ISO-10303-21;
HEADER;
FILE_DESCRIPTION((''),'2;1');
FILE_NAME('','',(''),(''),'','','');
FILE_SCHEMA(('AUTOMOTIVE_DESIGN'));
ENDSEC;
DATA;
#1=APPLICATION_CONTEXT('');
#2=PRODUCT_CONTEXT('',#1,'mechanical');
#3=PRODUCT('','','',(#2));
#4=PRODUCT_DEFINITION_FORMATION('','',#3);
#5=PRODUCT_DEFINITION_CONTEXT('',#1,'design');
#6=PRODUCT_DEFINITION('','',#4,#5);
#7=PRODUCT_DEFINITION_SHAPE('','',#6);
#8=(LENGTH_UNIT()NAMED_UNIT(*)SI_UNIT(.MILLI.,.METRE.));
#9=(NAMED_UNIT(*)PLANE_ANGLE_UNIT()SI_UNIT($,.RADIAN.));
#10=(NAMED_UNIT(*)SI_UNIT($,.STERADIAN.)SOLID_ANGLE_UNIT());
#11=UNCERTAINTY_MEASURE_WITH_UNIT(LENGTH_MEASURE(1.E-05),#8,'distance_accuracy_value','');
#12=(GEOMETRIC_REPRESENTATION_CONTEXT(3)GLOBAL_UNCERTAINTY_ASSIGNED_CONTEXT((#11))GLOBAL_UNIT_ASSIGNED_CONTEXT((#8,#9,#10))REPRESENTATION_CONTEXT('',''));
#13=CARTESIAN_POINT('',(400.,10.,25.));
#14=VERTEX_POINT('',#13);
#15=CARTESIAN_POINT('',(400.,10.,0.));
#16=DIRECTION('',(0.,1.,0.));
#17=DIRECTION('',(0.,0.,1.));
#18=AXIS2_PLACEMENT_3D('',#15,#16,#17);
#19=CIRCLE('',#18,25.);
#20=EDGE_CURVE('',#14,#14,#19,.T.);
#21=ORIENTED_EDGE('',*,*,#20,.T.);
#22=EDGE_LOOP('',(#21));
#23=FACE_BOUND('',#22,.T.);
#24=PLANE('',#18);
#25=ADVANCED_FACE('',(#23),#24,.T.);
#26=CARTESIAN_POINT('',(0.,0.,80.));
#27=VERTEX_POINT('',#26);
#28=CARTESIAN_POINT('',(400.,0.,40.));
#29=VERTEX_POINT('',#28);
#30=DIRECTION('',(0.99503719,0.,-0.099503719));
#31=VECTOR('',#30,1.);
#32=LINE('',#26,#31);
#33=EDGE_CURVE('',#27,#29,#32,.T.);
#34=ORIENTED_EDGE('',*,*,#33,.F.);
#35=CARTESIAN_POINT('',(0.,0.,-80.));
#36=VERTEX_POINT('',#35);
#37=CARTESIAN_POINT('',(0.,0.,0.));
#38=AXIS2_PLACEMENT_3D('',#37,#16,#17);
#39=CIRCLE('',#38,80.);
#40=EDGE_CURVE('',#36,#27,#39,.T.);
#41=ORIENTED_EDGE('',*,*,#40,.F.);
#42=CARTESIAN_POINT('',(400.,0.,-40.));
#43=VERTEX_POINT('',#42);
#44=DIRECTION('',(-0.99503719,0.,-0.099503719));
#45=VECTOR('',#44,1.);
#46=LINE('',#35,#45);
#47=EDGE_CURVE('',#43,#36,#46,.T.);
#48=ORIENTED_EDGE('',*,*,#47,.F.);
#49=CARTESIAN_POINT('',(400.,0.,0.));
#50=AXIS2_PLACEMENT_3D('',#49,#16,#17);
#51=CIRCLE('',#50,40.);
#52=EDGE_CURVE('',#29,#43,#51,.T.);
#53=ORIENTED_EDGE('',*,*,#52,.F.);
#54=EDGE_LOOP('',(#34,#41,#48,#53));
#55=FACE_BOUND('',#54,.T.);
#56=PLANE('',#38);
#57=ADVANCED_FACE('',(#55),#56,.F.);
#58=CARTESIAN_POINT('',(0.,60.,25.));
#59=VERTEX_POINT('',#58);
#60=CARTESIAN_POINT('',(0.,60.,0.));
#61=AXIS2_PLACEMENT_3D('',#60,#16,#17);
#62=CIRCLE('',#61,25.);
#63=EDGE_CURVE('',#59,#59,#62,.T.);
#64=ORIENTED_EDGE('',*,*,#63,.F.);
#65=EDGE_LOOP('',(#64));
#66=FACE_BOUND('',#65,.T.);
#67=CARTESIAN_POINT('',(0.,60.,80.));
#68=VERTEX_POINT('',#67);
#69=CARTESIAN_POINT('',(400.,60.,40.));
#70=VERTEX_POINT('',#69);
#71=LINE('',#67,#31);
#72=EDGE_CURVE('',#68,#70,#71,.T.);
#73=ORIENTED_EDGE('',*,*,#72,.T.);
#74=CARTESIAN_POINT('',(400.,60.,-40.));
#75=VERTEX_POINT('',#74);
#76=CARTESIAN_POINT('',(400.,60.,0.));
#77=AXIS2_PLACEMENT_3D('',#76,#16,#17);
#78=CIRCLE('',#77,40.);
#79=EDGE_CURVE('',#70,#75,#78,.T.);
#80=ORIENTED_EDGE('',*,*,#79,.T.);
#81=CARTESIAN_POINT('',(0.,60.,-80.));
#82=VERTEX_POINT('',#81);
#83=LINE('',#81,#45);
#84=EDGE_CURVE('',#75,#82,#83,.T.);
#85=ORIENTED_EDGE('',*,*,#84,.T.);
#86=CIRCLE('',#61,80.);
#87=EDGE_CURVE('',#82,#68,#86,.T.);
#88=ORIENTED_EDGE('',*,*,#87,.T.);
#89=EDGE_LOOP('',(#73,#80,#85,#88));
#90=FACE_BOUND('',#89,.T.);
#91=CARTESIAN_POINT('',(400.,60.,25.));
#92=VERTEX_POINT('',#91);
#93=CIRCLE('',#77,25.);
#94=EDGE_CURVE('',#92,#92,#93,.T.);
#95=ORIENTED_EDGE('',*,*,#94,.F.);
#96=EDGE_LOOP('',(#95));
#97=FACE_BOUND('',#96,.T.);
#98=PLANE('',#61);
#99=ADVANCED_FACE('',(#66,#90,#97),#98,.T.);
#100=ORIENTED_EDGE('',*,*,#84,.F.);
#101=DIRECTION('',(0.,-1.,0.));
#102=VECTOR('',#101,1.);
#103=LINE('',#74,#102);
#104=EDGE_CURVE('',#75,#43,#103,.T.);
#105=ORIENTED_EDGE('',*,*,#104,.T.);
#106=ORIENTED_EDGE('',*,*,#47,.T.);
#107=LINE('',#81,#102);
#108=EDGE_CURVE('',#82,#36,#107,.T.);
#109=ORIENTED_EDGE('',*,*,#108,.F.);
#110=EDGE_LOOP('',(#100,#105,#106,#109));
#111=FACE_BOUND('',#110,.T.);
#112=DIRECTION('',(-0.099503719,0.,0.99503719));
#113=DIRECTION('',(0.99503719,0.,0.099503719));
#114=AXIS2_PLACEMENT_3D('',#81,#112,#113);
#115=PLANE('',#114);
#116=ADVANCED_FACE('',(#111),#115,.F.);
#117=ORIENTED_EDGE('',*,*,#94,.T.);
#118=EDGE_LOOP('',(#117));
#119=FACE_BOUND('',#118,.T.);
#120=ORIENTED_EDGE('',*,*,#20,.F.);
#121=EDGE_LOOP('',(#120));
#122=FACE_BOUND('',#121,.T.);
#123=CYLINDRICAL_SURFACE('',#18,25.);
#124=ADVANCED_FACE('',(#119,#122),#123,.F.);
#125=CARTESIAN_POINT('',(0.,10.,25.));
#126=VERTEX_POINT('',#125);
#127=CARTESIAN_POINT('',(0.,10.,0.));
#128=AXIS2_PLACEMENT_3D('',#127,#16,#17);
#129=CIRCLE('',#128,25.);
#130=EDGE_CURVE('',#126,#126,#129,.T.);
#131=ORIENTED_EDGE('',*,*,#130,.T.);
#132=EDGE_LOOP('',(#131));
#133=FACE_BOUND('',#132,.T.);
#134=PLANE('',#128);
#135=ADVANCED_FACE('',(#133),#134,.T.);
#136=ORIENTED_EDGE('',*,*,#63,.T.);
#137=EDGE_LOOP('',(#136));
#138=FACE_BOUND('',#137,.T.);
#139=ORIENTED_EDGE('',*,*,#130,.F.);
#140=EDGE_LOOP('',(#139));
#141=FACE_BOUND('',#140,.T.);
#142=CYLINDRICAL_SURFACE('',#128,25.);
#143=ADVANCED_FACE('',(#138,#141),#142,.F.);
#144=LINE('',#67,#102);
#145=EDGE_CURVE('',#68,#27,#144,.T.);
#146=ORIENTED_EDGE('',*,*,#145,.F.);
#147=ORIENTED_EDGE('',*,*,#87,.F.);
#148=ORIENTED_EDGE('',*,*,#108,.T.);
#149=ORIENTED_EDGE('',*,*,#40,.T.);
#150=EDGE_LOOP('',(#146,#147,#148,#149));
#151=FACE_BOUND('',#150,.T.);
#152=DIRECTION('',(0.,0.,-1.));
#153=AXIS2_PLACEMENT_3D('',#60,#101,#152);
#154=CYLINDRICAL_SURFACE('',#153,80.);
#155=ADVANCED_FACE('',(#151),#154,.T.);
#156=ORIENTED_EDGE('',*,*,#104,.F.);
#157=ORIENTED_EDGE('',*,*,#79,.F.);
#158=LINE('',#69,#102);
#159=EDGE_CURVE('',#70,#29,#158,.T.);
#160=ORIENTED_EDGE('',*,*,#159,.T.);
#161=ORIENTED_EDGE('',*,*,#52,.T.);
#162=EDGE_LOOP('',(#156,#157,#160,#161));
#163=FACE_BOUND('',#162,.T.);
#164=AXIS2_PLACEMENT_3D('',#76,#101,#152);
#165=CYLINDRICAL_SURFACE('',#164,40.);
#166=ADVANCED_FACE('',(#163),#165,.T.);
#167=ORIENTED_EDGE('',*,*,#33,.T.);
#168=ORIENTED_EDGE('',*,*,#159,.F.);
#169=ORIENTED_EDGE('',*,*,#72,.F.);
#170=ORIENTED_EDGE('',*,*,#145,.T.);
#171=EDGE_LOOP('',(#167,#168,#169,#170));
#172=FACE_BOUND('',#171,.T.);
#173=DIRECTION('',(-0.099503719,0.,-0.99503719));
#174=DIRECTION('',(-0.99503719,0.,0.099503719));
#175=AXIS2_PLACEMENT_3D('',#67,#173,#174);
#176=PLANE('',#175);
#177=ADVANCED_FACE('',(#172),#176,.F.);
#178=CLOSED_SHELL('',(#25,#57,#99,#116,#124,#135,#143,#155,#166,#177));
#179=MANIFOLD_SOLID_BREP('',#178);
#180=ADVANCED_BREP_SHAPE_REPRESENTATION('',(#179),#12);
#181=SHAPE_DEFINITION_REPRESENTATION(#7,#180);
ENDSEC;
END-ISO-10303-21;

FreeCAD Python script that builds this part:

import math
import FreeCAD as App
import Part
import Sketcher
Q = App.Units.Quantity

doc = App.newDocument("Part")
body = doc.addObject("PartDesign::Body", "Body")

# Sketch on XZ plane
sketch1 = body.newObject("Sketcher::SketchObject", "Sketch")
sketch1.AttachmentSupport = (doc.getObject("XZ_Plane"), [""])
sketch1.MapMode = "FlatFace"
sketch1.addGeometry([
    Part.LineSegment(App.Vector(400, -40, 0), App.Vector(0, -80, 0)),
    Part.ArcOfCircle(Part.Circle(App.Vector(0, 0, 0), App.Vector(0, 0, 1), 80), math.radians(90), math.radians(270)),
    Part.LineSegment(App.Vector(0, 80, 0), App.Vector(400, 40, 0)),
    Part.ArcOfCircle(Part.Circle(App.Vector(400, 0, 0), App.Vector(0, 0, 1), 40), math.radians(-90), math.radians(90)),
], False)
sketch1.addConstraint([
    Sketcher.Constraint("Coincident", 0, 2, 1, 2),
    Sketcher.Constraint("Coincident", 1, 1, 2, 1),
    Sketcher.Constraint("Coincident", 2, 2, 3, 2),
    Sketcher.Constraint("Coincident", 3, 1, 0, 1),
    Sketcher.Constraint("Coincident", 1, 3, -1, 1),
    Sketcher.Constraint("Symmetric", 2, 2, 3, 1, -1),
    Sketcher.Constraint("PointOnObject", 0, 2, -2),
    Sketcher.Constraint("PointOnObject", 1, 1, -2),
    Sketcher.Constraint("Vertical", 3, 3, 2, 2),
    Sketcher.Constraint("Radius", 1, Q("80 mm")),
    Sketcher.Constraint("Radius", 3, Q("40 mm")),
    Sketcher.Constraint("DistanceX", -1, 1, 3, 3, Q("400 mm")),
])
pad1 = body.newObject("PartDesign::Pad", "Pad")
pad1.Profile = sketch1
pad1.Length = 60
pad1.Reversed = True

# Sketch on XZ plane
sketch2 = body.newObject("Sketcher::SketchObject", "Sketch001")
sketch2.AttachmentSupport = (doc.getObject("XZ_Plane"), [""])
sketch2.MapMode = "FlatFace"
sketch2.AttachmentOffset = App.Placement(App.Vector(0, 0, -60), App.Rotation())
sketch2.addGeometry([
    Part.Circle(App.Vector(0, 0, 0), App.Vector(0, 0, 1), 25),
    Part.Circle(App.Vector(400, 0, 0), App.Vector(0, 0, 1), 25),
], False)
sketch2.addConstraint([
    Sketcher.Constraint("Coincident", 0, 3, -1, 1),
    Sketcher.Constraint("Equal", 0, 1),
    Sketcher.Constraint("PointOnObject", 1, 3, -1),
    Sketcher.Constraint("Diameter", 0, Q("50 mm")),
    Sketcher.Constraint("DistanceX", -1, 1, 1, 3, Q("400 mm")),
])
pocket1 = body.newObject("PartDesign::Pocket", "Pocket")
pocket1.Profile = sketch2
pocket1.Length = 50
pocket1.Reversed = True

doc.recompute()
